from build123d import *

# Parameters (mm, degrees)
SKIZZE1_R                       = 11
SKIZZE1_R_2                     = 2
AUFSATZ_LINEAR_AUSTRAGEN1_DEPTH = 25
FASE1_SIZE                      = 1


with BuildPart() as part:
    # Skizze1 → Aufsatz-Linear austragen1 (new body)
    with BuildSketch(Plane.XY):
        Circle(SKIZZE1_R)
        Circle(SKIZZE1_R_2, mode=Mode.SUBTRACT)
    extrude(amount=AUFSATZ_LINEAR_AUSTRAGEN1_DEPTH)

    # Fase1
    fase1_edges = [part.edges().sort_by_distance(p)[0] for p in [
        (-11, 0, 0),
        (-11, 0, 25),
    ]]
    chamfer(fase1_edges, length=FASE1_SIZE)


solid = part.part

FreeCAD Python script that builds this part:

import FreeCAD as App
import Part
import Sketcher
from FreeCAD import Vector


def edges_at(feature, points):
    """Names of the edges that pass closest to the given points."""
    edges = feature.Shape.Edges
    near = lambda p: min(range(len(edges)), key=lambda i: edges[i].distToShape(Part.Vertex(*p))[0])
    return sorted({f"Edge{near(p) + 1}" for p in points})

doc = App.newDocument("Part")
body = doc.addObject("PartDesign::Body", "Body")

# Sketch on XY plane
sketch1 = body.newObject("Sketcher::SketchObject", "Sketch")
sketch1.AttachmentSupport = (doc.getObject("XY_Plane"), [""])
sketch1.MapMode = "FlatFace"
sketch1.addGeometry(Part.Circle(Vector(0, 0, 0), Vector(0, 0, 1), 11), False)
sketch1.addGeometry(Part.Circle(Vector(0, 0, 0), Vector(0, 0, 1), 2), False)
sketch1.addConstraint(Sketcher.Constraint("Coincident", 0, 3, -1, 1))
sketch1.addConstraint(Sketcher.Constraint("Coincident", 1, 3, -1, 1))
sketch1.addConstraint(Sketcher.Constraint("Diameter", 0, 22.0))
sketch1.addConstraint(Sketcher.Constraint("Diameter", 1, 4.0))
pad1 = body.newObject("PartDesign::Pad", "Pad")
pad1.Profile = sketch1
pad1.Length = 25
doc.recompute()

chamfer = body.newObject("PartDesign::Chamfer", "Chamfer")
chamfer.Base = (pad1, edges_at(pad1, [(-11, 0, 0), (-11, 0, 25)]))
chamfer.Size = 1

doc.recompute()
